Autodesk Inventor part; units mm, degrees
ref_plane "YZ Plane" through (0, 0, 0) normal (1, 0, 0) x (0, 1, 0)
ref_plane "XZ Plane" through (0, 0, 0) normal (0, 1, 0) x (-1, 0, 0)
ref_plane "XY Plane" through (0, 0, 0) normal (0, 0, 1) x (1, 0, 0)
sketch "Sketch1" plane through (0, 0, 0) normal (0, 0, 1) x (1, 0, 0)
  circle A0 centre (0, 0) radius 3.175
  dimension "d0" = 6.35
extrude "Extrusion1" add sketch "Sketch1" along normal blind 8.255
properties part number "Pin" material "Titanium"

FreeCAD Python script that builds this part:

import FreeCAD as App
import Part
import Sketcher

V = App.Vector
Q = App.Units.Quantity

doc = App.newDocument("Part")
body = doc.addObject("PartDesign::Body", "Body")

# Sketch on XY plane
sketch1 = body.newObject("Sketcher::SketchObject", "Sketch")
sketch1.AttachmentSupport = (doc.getObject("XY_Plane"), [""])
sketch1.MapMode = "FlatFace"
sketch1.addGeometry(Part.Circle(V(0, 0, 0), V(0, 0, 1), 3.2), False)
sketch1.addConstraint([
    Sketcher.Constraint("Coincident", 0, 3, -1, 1),
    Sketcher.Constraint("Diameter", 0, Q("0.25 in")),
])
pad1 = body.newObject("PartDesign::Pad", "Pad")
pad1.Profile = sketch1
pad1.Length = Q("0.325 in")

doc.recompute()
